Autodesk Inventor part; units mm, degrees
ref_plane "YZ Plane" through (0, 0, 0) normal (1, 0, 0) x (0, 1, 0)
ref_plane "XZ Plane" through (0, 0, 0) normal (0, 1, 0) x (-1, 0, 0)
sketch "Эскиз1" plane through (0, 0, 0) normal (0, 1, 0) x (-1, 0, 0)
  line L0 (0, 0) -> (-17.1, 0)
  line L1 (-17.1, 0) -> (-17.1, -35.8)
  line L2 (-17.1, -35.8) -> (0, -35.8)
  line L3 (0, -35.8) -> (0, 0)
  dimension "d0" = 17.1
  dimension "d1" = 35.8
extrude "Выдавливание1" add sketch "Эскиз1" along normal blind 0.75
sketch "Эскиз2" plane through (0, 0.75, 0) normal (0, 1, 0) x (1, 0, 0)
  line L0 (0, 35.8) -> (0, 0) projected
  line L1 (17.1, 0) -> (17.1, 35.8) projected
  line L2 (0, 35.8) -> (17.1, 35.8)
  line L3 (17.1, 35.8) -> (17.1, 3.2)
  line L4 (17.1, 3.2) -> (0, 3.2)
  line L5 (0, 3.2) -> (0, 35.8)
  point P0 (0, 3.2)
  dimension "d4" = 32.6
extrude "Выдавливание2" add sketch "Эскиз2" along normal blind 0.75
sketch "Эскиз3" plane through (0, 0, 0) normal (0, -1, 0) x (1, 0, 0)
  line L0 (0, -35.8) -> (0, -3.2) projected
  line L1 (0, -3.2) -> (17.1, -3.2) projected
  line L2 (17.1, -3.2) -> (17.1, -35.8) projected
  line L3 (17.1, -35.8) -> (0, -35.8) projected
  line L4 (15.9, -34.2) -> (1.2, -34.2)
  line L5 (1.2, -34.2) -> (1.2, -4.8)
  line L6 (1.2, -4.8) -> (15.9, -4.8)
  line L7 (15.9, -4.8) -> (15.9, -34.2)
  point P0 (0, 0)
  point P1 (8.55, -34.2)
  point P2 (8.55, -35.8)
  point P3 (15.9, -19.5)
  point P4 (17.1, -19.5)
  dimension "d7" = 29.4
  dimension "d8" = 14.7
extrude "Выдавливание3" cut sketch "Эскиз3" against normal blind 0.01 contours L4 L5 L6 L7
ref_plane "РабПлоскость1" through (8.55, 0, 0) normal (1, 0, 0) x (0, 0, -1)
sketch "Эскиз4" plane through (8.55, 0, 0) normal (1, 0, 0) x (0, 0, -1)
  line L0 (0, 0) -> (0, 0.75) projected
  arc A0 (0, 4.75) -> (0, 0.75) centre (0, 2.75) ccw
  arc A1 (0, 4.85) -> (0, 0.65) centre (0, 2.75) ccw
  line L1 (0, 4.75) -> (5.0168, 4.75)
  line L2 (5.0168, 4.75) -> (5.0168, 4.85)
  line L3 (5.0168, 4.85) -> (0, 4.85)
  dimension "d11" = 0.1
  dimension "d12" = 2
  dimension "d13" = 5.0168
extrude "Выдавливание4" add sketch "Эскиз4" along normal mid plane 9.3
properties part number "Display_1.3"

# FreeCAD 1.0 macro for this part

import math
import FreeCAD as App
import Part
import Sketcher
Q = App.Units.Quantity

doc = App.newDocument("Part")
body = doc.addObject("PartDesign::Body", "Body")

sketch1 = body.newObject("Sketcher::SketchObject", "Sketch")
sketch1.AttachmentSupport = (doc.getObject("XZ_Plane"), [""])
sketch1.MapMode = "FlatFace"
sketch1.addGeometry([
    Part.LineSegment(App.Vector(0, -36, 0), App.Vector(0, 0, 0)),
    Part.LineSegment(App.Vector(0, 0, 0), App.Vector(17, 0, 0)),
    Part.LineSegment(App.Vector(17, 0, 0), App.Vector(17, -36, 0)),
    Part.LineSegment(App.Vector(17, -36, 0), App.Vector(0, -36, 0)),
], False)
sketch1.addConstraint([
    Sketcher.Constraint("Coincident", 0, 2, 1, 1),
    Sketcher.Constraint("Coincident", 1, 2, 2, 1),
    Sketcher.Constraint("Coincident", 2, 2, 3, 1),
    Sketcher.Constraint("Coincident", 3, 2, 0, 1),
    Sketcher.Constraint("Vertical", 0),
    Sketcher.Constraint("Horizontal", 1),
    Sketcher.Constraint("Vertical", 2),
    Sketcher.Constraint("Horizontal", 3),
    Sketcher.Constraint("Coincident", 0, 2, -1, 1),
    Sketcher.Constraint("DistanceX", 1, 1, 1, 2, Q("17.1 mm")),
    Sketcher.Constraint("DistanceY", 0, 1, 0, 2, Q("35.8 mm")),
])
pad1 = body.newObject("PartDesign::Pad", "Pad")
pad1.Profile = sketch1
pad1.Length = 0.75
pad1.Reversed = True

sketch2 = body.newObject("Sketcher::SketchObject", "Sketch001")
sketch2.AttachmentSupport = (doc.getObject("XZ_Plane"), [""])
sketch2.MapMode = "FlatFace"
sketch2.AttachmentOffset = App.Placement(App.Vector(0, 0, -0.75), App.Rotation())
sketch2.addGeometry([
    Part.LineSegment(App.Vector(17, -36, 0), App.Vector(0, -36, 0)),
    Part.LineSegment(App.Vector(0, -36, 0), App.Vector(0, -3, 0)),
    Part.LineSegment(App.Vector(0, -3, 0), App.Vector(17, -3, 0)),
    Part.LineSegment(App.Vector(17, -3, 0), App.Vector(17, -36, 0)),
], False)
sketch2.addConstraint([
    Sketcher.Constraint("Coincident", 0, 2, 1, 1),
    Sketcher.Constraint("Coincident", 1, 2, 2, 1),
    Sketcher.Constraint("Coincident", 2, 2, 3, 1),
    Sketcher.Constraint("Coincident", 3, 2, 0, 1),
    Sketcher.Constraint("Horizontal", 0),
    Sketcher.Constraint("Vertical", 1),
    Sketcher.Constraint("Horizontal", 2),
    Sketcher.Constraint("Vertical", 3),
    Sketcher.Constraint("PointOnObject", 0, 2, -2),
    Sketcher.Constraint("DistanceY", 1, 1, 1, 2, Q("32.6 mm")),
    Sketcher.Constraint("DistanceX", 0, 2, 0, 1, Q("17.1 mm")),
    Sketcher.Constraint("DistanceY", 0, 2, -1, 1, Q("35.8 mm")),
])
pad2 = body.newObject("PartDesign::Pad", "Pad001")
pad2.Profile = sketch2
pad2.Length = 0.75
pad2.Reversed = True

sketch3 = body.newObject("Sketcher::SketchObject", "Sketch002")
sketch3.AttachmentSupport = (doc.getObject("XZ_Plane"), [""])
sketch3.MapMode = "FlatFace"
sketch3.addGeometry([
    Part.LineSegment(App.Vector(1, -34, 0), App.Vector(16, -34, 0)),
    Part.LineSegment(App.Vector(16, -34, 0), App.Vector(16, -5, 0)),
    Part.LineSegment(App.Vector(16, -5, 0), App.Vector(1, -5, 0)),
    Part.LineSegment(App.Vector(1, -5, 0), App.Vector(1, -34, 0)),
], False)
sketch3.addConstraint([
    Sketcher.Constraint("Coincident", 0, 2, 1, 1),
    Sketcher.Constraint("Coincident", 1, 2, 2, 1),
    Sketcher.Constraint("Coincident", 2, 2, 3, 1),
    Sketcher.Constraint("Coincident", 3, 2, 0, 1),
    Sketcher.Constraint("Horizontal", 0),
    Sketcher.Constraint("Vertical", 1),
    Sketcher.Constraint("Horizontal", 2),
    Sketcher.Constraint("Vertical", 3),
    Sketcher.Constraint("DistanceX", 0, 1, 0, 2, Q("14.7 mm")),
    Sketcher.Constraint("DistanceY", 1, 1, 1, 2, Q("29.4 mm")),
    Sketcher.Constraint("DistanceX", -1, 1, 0, 2, Q("15.9 mm")),
    Sketcher.Constraint("DistanceY", 0, 2, -1, 1, Q("34.2 mm")),
])
pocket1 = body.newObject("PartDesign::Pocket", "Pocket")
pocket1.Profile = sketch3
pocket1.Length = 0.01

sketch4 = body.newObject("Sketcher::SketchObject", "Sketch003")
sketch4.AttachmentSupport = (doc.getObject("YZ_Plane"), [""])
sketch4.MapMode = "FlatFace"
sketch4.AttachmentOffset = App.Placement(App.Vector(0, 0, 8.55), App.Rotation())
sketch4.addGeometry([
    Part.ArcOfCircle(Part.Circle(App.Vector(2.75, 0, 0), App.Vector(0, 0, 1), 2.1), math.radians(0), math.radians(180)),
    Part.LineSegment(App.Vector(0.65, 0, 0), App.Vector(0.75, 0, 0)),
    Part.ArcOfCircle(Part.Circle(App.Vector(2.75, 0, 0), App.Vector(0, 0, 1), 2), math.radians(0), math.radians(180)),
    Part.LineSegment(App.Vector(4.75, 0, 0), App.Vector(4.75, -5.02, 0)),
    Part.LineSegment(App.Vector(4.75, -5.02, 0), App.Vector(4.85, -5.02, 0)),
    Part.LineSegment(App.Vector(4.85, -5.02, 0), App.Vector(4.85, 0, 0)),
], False)
sketch4.addConstraint([
    Sketcher.Constraint("Coincident", 0, 2, 1, 1),
    Sketcher.Constraint("Coincident", 1, 2, 2, 2),
    Sketcher.Constraint("Tangent", 2, 1, 3, 1),
    Sketcher.Constraint("Coincident", 3, 2, 4, 1),
    Sketcher.Constraint("Coincident", 4, 2, 5, 1),
    Sketcher.Constraint("Tangent", 5, 2, 0, 1),
    Sketcher.Constraint("Horizontal", 1),
    Sketcher.Constraint("Vertical", 3),
    Sketcher.Constraint("Horizontal", 4),
    Sketcher.Constraint("Vertical", 5),
    Sketcher.Constraint("Coincident", 2, 3, 0, 3),
    Sketcher.Constraint("PointOnObject", 0, 3, -1),
    Sketcher.Constraint("PointOnObject", 0, 2, -1),
    Sketcher.Constraint("Radius", 2, Q("2 mm")),
    Sketcher.Constraint("DistanceX", 1, 1, 1, 2, Q("0.1 mm")),
    Sketcher.Constraint("DistanceY", 3, 2, 3, 1, Q("5.0168 mm")),
    Sketcher.Constraint("DistanceX", -1, 1, 0, 3, Q("2.75 mm")),
])
pad3 = body.newObject("PartDesign::Pad", "Pad002")
pad3.Profile = sketch4
pad3.Length = 9.3
pad3.Midplane = True

doc.recompute()
